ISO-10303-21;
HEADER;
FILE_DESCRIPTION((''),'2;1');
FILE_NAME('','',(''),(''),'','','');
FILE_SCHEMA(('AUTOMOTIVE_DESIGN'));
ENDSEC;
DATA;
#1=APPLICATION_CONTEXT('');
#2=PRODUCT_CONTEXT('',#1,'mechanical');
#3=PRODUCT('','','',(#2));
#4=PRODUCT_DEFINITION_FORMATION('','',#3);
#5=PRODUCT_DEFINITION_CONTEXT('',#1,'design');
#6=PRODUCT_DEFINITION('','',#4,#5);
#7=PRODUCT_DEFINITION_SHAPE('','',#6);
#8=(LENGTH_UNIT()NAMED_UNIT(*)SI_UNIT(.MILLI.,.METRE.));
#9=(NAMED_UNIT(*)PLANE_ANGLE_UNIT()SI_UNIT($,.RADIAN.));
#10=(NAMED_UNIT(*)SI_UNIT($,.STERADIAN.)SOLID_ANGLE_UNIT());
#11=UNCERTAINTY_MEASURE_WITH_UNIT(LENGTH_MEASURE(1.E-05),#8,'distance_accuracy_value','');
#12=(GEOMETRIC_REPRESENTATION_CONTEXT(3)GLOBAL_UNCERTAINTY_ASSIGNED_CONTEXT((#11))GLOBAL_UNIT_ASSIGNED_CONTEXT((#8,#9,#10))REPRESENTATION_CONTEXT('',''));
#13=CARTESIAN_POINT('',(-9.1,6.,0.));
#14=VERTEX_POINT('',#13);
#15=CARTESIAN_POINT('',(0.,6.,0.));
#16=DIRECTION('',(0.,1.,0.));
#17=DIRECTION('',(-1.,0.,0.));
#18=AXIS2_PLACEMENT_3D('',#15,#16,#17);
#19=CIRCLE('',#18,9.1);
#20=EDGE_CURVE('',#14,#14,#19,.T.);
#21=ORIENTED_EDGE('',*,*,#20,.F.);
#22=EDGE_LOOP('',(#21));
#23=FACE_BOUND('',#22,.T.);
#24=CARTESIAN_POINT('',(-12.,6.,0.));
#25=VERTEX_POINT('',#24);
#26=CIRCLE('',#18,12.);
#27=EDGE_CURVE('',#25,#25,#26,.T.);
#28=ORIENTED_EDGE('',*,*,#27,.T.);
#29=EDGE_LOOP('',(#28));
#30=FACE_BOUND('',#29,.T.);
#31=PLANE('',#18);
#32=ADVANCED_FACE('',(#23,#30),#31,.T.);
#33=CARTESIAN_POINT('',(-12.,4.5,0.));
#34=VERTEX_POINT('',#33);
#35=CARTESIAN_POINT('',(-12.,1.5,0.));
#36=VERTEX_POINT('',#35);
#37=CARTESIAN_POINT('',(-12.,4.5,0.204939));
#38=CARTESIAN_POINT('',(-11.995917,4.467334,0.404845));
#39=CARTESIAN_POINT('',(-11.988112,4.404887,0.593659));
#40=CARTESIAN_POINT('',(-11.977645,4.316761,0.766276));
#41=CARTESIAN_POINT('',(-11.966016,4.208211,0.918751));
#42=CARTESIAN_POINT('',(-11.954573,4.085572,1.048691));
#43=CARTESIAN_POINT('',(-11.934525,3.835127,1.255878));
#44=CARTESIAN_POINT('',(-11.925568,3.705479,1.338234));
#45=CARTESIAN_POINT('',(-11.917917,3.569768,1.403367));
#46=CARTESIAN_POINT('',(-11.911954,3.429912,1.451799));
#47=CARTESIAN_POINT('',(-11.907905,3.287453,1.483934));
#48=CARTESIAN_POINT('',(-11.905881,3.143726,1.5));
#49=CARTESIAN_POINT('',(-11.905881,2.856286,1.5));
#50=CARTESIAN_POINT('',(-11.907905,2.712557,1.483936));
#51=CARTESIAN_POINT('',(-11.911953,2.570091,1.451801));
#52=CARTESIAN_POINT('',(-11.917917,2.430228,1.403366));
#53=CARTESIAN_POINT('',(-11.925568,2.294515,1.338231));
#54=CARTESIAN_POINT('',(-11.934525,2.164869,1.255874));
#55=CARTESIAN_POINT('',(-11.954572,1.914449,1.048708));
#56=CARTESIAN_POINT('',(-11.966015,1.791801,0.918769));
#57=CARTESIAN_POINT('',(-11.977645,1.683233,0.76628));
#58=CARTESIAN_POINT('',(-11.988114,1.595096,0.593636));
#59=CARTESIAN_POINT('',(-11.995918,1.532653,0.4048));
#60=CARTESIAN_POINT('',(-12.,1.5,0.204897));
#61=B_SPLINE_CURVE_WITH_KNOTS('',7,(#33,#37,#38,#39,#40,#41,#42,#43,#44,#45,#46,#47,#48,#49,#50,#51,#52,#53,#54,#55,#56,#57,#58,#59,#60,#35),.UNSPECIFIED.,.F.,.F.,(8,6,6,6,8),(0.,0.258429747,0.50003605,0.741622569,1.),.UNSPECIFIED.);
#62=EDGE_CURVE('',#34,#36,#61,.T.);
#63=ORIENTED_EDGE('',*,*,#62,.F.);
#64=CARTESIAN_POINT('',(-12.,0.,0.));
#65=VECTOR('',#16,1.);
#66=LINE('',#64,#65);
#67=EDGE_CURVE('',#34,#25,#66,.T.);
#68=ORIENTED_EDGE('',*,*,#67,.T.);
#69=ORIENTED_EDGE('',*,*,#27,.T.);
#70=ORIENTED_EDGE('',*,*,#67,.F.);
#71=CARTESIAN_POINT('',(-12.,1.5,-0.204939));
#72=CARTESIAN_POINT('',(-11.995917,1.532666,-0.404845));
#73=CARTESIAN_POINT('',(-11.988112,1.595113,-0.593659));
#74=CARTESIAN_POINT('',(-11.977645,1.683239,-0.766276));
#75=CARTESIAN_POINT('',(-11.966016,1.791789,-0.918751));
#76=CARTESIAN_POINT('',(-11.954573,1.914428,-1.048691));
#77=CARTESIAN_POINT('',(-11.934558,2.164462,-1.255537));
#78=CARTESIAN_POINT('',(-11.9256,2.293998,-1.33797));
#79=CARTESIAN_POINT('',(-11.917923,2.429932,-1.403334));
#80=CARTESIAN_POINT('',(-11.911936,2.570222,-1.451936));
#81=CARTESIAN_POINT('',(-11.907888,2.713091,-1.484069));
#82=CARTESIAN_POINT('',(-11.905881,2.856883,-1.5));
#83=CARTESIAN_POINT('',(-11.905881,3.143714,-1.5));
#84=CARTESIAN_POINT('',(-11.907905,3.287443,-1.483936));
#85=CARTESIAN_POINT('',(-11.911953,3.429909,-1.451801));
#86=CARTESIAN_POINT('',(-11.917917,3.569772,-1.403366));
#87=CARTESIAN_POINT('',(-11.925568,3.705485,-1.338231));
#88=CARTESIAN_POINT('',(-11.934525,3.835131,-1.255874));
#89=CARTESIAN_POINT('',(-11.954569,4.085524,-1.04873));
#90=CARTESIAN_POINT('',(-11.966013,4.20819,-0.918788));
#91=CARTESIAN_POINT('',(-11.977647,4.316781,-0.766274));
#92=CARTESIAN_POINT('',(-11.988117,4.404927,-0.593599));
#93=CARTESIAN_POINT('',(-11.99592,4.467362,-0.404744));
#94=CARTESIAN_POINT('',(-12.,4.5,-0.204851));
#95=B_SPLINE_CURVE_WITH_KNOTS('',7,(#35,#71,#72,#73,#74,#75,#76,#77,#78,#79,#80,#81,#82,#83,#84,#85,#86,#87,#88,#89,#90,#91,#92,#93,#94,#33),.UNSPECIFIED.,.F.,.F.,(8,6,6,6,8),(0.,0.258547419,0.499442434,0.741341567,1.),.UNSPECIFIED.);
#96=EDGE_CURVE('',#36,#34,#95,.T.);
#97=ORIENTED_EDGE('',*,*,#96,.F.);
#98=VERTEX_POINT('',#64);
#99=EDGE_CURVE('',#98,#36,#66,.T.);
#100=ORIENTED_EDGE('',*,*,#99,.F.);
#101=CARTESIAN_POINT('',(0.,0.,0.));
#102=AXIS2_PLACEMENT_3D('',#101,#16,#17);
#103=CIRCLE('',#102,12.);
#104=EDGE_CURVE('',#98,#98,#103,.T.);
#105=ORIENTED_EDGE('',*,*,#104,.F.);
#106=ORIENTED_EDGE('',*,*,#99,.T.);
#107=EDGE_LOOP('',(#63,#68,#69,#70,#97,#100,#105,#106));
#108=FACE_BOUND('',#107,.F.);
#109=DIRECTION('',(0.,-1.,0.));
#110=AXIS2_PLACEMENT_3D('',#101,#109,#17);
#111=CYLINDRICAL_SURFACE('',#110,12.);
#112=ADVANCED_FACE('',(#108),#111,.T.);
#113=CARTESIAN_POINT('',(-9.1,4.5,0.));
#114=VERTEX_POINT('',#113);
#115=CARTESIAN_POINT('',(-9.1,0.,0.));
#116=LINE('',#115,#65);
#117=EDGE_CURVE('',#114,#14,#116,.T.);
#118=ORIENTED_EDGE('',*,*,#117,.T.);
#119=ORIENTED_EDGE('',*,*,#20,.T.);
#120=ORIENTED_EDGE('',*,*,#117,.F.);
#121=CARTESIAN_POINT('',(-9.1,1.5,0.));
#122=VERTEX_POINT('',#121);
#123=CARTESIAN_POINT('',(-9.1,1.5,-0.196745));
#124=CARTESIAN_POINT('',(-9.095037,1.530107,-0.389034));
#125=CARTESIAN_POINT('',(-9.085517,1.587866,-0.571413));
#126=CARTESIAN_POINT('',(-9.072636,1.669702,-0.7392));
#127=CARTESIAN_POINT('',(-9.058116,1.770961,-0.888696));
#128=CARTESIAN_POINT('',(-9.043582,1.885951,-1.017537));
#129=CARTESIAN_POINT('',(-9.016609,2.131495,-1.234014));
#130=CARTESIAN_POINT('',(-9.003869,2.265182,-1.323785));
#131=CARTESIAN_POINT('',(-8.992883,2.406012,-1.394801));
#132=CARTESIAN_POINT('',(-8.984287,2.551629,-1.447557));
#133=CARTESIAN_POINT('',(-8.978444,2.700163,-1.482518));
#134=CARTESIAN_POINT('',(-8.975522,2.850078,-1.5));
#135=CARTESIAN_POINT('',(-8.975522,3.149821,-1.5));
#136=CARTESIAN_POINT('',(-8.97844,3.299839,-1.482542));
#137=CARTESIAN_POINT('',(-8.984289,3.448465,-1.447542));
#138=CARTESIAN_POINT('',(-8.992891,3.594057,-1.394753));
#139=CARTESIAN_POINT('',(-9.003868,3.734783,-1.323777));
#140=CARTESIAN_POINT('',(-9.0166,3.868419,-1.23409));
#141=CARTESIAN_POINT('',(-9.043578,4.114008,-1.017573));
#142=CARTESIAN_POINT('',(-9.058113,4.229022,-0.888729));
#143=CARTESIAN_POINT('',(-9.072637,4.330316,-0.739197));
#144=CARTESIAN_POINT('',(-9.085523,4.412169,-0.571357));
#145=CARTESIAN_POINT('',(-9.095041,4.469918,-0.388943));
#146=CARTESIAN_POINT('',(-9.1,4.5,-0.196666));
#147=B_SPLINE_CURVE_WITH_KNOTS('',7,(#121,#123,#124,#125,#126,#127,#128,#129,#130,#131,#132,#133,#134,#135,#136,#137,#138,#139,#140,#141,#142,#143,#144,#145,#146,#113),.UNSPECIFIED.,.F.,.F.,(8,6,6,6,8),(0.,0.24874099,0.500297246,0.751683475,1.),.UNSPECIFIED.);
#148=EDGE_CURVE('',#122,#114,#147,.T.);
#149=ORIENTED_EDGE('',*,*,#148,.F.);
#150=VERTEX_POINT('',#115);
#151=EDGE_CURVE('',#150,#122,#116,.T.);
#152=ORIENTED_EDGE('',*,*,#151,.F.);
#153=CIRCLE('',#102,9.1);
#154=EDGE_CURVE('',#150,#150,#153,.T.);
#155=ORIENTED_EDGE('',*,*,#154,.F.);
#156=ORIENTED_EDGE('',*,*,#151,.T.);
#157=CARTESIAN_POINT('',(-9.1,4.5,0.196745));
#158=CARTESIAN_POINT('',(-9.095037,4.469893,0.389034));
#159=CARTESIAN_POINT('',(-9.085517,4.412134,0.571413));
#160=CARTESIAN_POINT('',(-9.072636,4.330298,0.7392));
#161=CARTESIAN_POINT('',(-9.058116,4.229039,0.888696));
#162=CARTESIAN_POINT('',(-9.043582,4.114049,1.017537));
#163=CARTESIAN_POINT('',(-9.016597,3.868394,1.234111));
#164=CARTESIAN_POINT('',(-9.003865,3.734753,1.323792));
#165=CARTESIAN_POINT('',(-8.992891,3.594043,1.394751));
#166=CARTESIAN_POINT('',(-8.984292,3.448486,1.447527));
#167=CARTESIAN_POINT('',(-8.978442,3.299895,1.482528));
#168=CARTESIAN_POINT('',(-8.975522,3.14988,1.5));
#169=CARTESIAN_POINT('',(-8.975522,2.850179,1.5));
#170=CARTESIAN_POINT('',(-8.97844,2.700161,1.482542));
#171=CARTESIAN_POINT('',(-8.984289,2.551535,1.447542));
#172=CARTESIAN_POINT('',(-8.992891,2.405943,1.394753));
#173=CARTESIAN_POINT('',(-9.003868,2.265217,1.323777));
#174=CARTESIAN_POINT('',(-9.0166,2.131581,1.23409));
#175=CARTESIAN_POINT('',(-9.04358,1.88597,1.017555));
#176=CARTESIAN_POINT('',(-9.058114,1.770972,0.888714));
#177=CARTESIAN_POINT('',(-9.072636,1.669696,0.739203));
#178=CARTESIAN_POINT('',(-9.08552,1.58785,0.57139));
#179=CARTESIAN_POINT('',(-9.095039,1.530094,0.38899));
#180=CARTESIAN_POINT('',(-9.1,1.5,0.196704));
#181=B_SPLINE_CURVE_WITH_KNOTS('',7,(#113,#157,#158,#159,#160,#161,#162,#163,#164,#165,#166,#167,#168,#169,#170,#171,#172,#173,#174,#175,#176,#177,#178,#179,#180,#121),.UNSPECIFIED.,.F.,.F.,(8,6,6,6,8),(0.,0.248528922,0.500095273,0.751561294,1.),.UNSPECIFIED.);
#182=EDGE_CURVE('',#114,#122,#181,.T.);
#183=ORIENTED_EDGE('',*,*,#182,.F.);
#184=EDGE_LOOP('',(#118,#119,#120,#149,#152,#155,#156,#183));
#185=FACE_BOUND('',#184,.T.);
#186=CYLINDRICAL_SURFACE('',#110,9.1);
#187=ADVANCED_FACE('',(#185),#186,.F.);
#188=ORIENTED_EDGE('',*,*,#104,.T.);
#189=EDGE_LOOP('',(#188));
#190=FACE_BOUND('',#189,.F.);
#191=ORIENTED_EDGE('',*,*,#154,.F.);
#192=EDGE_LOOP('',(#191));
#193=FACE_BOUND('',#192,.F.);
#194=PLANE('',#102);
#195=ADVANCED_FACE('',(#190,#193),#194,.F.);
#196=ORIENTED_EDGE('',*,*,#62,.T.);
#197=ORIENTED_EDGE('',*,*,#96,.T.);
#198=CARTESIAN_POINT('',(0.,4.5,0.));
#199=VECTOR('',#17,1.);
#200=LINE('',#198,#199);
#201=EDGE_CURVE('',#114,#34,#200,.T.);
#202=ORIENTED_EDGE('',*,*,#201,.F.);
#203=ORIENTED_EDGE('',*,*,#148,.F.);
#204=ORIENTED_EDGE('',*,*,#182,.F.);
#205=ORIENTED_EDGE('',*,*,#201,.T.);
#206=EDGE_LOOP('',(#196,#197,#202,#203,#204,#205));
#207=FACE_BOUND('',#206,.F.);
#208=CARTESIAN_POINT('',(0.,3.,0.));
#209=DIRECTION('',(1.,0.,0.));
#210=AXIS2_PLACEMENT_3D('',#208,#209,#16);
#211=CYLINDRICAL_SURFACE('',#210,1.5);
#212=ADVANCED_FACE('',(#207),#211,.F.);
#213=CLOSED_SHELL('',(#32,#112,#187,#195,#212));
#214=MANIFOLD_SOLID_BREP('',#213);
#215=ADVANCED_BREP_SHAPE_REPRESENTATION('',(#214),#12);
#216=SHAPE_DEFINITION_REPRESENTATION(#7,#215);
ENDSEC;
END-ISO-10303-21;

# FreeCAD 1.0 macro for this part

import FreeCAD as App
import Part
import Sketcher

V = App.Vector

doc = App.newDocument("Part")
body = doc.addObject("PartDesign::Body", "Body")

sketch1 = doc.addObject("Sketcher::SketchObject", "Sketch")
body.addObject(sketch1)
sketch1.AttachmentSupport = (doc.XZ_Plane, [""])
sketch1.MapMode = "FlatFace"
sketch1.addGeometry([
    Part.Circle(V(0, 0, 0), V(0, 0, 1), 12),
    Part.Circle(V(0, 0, 0), V(0, 0, 1), 9),
], False)
sketch1.addConstraint([
    Sketcher.Constraint("Coincident", 0, 3, -1, 1),
    Sketcher.Constraint("Coincident", 1, 3, -1, 1),
    Sketcher.Constraint("Diameter", 0, 24.0),
    Sketcher.Constraint("Diameter", 1, 18.2),
])
pad1 = doc.addObject("PartDesign::Pad", "Pad")
body.addObject(pad1)
pad1.Profile = sketch1
pad1.Length = 6
pad1.Reversed = True

sketch2 = doc.addObject("Sketcher::SketchObject", "Sketch001")
body.addObject(sketch2)
sketch2.AttachmentSupport = (doc.YZ_Plane, [""])
sketch2.MapMode = "FlatFace"
sketch2.addGeometry(Part.Circle(V(3, 0, 0), V(0, 0, 1), 1.5), False)
sketch2.addConstraint([
    Sketcher.Constraint("PointOnObject", 0, 3, -1),
    Sketcher.Constraint("Diameter", 0, 3.0),
    Sketcher.Constraint("DistanceX", -1, 1, 0, 3, 3.0),
])
pocket1 = doc.addObject("PartDesign::Pocket", "Pocket")
body.addObject(pocket1)
pocket1.Profile = sketch2
pocket1.Type = "ThroughAll"

doc.recompute()
